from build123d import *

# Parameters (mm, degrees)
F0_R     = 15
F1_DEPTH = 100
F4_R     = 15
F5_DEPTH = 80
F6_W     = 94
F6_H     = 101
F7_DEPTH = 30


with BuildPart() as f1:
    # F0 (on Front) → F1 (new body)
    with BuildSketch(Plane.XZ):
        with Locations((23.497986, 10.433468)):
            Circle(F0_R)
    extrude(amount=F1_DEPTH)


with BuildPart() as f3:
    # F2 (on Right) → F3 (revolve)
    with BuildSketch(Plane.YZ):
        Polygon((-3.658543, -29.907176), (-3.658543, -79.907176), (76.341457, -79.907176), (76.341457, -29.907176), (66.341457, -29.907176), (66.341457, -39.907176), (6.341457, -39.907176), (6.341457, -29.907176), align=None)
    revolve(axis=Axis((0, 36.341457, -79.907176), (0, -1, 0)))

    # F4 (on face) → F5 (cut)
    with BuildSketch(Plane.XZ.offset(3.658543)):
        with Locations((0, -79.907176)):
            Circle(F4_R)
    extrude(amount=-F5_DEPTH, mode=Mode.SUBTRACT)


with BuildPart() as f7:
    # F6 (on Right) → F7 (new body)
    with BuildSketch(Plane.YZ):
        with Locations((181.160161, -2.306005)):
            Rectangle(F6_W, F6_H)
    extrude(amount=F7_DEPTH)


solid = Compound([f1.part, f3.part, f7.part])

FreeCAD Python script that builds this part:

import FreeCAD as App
import Part
import Sketcher

V = App.Vector
Q = App.Units.Quantity

doc = App.newDocument("Part")
body = doc.addObject("PartDesign::Body", "Body")

# Sketch on XZ plane
sketch1 = doc.addObject("Sketcher::SketchObject", "Sketch")
body.addObject(sketch1)
sketch1.AttachmentSupport = (doc.XZ_Plane, [""])
sketch1.MapMode = "FlatFace"
sketch1.addGeometry(Part.Circle(V(23.497986, 10.433468, 0), V(0, 0, 1), 15), False)
sketch1.addConstraint([
    Sketcher.Constraint("Diameter", 0, Q("30 mm")),
    Sketcher.Constraint("DistanceX", -1, 1, 0, 3, Q("23.497986 mm")),
    Sketcher.Constraint("DistanceY", -1, 1, 0, 3, Q("10.433468 mm")),
])
pad1 = doc.addObject("PartDesign::Pad", "Pad")
body.addObject(pad1)
pad1.Profile = sketch1
pad1.Length = 100
body2 = doc.addObject("PartDesign::Body", "Body001")

# Sketch on YZ plane
sketch2 = doc.addObject("Sketcher::SketchObject", "Sketch001")
body2.addObject(sketch2)
sketch2.AttachmentSupport = (doc.getObject("YZ_Plane001"), [""])
sketch2.MapMode = "FlatFace"
sketch2.addGeometry([
    Part.LineSegment(V(-3.658543, -29.907176, 0), V(-3.658543, -79.907176, 0)),  # 0
    Part.LineSegment(V(-3.658543, -79.907176, 0), V(76.341457, -79.907176, 0)),  # 1
    Part.LineSegment(V(76.341457, -79.907176, 0), V(76.341457, -29.907176, 0)),  # 2
    Part.LineSegment(V(76.341457, -29.907176, 0), V(66.341457, -29.907176, 0)),  # 3
    Part.LineSegment(V(66.341457, -29.907176, 0), V(66.341457, -39.907176, 0)),  # 4
    Part.LineSegment(V(66.341457, -39.907176, 0), V(6.341457, -39.907176, 0)),  # 5
    Part.LineSegment(V(6.341457, -39.907176, 0), V(6.341457, -29.907176, 0)),  # 6
    Part.LineSegment(V(6.341457, -29.907176, 0), V(-3.658543, -29.907176, 0)),  # 7
], False)
sketch2.addGeometry(Part.LineSegment(V(76.341457, -79.907176, 0), V(-3.658543, -79.907176, 0)), True)  # axis
sketch2.addConstraint([
    Sketcher.Constraint("Coincident", 0, 2, 1, 1),
    Sketcher.Constraint("Coincident", 1, 2, 2, 1),
    Sketcher.Constraint("Coincident", 2, 2, 3, 1),
    Sketcher.Constraint("Coincident", 3, 2, 4, 1),
    Sketcher.Constraint("Coincident", 4, 2, 5, 1),
    Sketcher.Constraint("Coincident", 5, 2, 6, 1),
    Sketcher.Constraint("Coincident", 6, 2, 7, 1),
    Sketcher.Constraint("Coincident", 7, 2, 0, 1),
    Sketcher.Constraint("Vertical", 0),
    Sketcher.Constraint("Horizontal", 1),
    Sketcher.Constraint("Vertical", 2),
    Sketcher.Constraint("Horizontal", 3),
    Sketcher.Constraint("Vertical", 4),
    Sketcher.Constraint("Horizontal", 5),
    Sketcher.Constraint("Vertical", 6),
    Sketcher.Constraint("Horizontal", 7),
    Sketcher.Constraint("Horizontal", 8),
    Sketcher.Constraint("Coincident", 8, 1, 1, 2),
    Sketcher.Constraint("Horizontal", 3, 2, 6, 2),
    Sketcher.Constraint("Vertical", 7, 2, 8, 2),
    Sketcher.Constraint("Equal", 3, 7),
    Sketcher.Constraint("Equal", 7, 4),
    Sketcher.Constraint("DistanceX", 1, 1, 1, 2, Q("80 mm")),
    Sketcher.Constraint("DistanceX", 3, 2, 3, 1, Q("10 mm")),
    Sketcher.Constraint("DistanceY", 0, 2, 0, 1, Q("50 mm")),
    Sketcher.Constraint("DistanceX", 0, 2, -1, 1, Q("3.658543 mm")),
    Sketcher.Constraint("DistanceY", 0, 2, -1, 1, Q("79.907176 mm")),
])
revolution = doc.addObject("PartDesign::Revolution", "Revolution")
body2.addObject(revolution)
revolution.Profile = sketch2
revolution.ReferenceAxis = (sketch2, ["Axis0"])
revolution.Angle = 360

# Sketch on XZ plane
sketch3 = doc.addObject("Sketcher::SketchObject", "Sketch002")
body2.addObject(sketch3)
sketch3.AttachmentSupport = (doc.getObject("XZ_Plane001"), [""])
sketch3.MapMode = "FlatFace"
sketch3.AttachmentOffset = App.Placement(V(0, 0, 3.658543), App.Rotation())
sketch3.addGeometry(Part.Circle(V(0, -79.907176, 0), V(0, 0, 1), 15), False)
sketch3.addConstraint([
    Sketcher.Constraint("PointOnObject", 0, 3, -2),
    Sketcher.Constraint("Diameter", 0, Q("30 mm")),
    Sketcher.Constraint("DistanceY", 0, 3, -1, 1, Q("79.907176 mm")),
])
pocket1 = doc.addObject("PartDesign::Pocket", "Pocket")
body2.addObject(pocket1)
pocket1.Profile = sketch3
pocket1.Length = 80
body3 = doc.addObject("PartDesign::Body", "Body002")

# Sketch on YZ plane
sketch4 = doc.addObject("Sketcher::SketchObject", "Sketch003")
body3.addObject(sketch4)
sketch4.AttachmentSupport = (doc.getObject("YZ_Plane002"), [""])
sketch4.MapMode = "FlatFace"
sketch4.addGeometry([
    Part.LineSegment(V(134.160161, 48.193995, 0), V(134.160161, -52.806005, 0)),
    Part.LineSegment(V(134.160161, -52.806005, 0), V(228.160161, -52.806005, 0)),
    Part.LineSegment(V(228.160161, -52.806005, 0), V(228.160161, 48.193995, 0)),
    Part.LineSegment(V(228.160161, 48.193995, 0), V(134.160161, 48.193995, 0)),
], False)
sketch4.addConstraint([
    Sketcher.Constraint("Coincident", 0, 2, 1, 1),
    Sketcher.Constraint("Coincident", 1, 2, 2, 1),
    Sketcher.Constraint("Coincident", 2, 2, 3, 1),
    Sketcher.Constraint("Coincident", 3, 2, 0, 1),
    Sketcher.Constraint("Vertical", 0),
    Sketcher.Constraint("Horizontal", 1),
    Sketcher.Constraint("Vertical", 2),
    Sketcher.Constraint("Horizontal", 3),
    Sketcher.Constraint("DistanceX", 1, 1, 1, 2, Q("94 mm")),
    Sketcher.Constraint("DistanceY", 0, 2, 0, 1, Q("101 mm")),
    Sketcher.Constraint("DistanceX", -1, 1, 0, 2, Q("134.160161 mm")),
    Sketcher.Constraint("DistanceY", 0, 2, -1, 1, Q("52.806005 mm")),
])
pad2 = doc.addObject("PartDesign::Pad", "Pad001")
body3.addObject(pad2)
pad2.Profile = sketch4
pad2.Length = 30

doc.recompute()
